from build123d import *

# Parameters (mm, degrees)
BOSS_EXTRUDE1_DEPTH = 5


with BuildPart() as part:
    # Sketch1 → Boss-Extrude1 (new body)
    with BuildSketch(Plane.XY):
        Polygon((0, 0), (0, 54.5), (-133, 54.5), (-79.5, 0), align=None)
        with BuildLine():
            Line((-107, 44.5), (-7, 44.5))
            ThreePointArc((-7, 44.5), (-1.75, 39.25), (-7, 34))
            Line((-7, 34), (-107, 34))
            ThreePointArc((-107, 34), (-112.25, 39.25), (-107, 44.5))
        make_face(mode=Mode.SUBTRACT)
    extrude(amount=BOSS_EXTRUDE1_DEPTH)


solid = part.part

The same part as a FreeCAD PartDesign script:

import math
import FreeCAD as App
import Part
import Sketcher
from FreeCAD import Vector
Q = App.Units.Quantity


def add_polygon(sketch, points):
    """Adds a closed chain of lines whose ends are joined by coincident constraints."""
    first, n = sketch.GeometryCount, len(points)
    for a, b in zip(points, points[1:] + points[:1]):
        sketch.addGeometry(Part.LineSegment(App.Vector(*a, 0), App.Vector(*b, 0)), False)
    for i in range(n):
        sketch.addConstraint(Sketcher.Constraint("Coincident", first + i, 2, first + (i + 1) % n, 1))

doc = App.newDocument("Part")
body = doc.addObject("PartDesign::Body", "Body")

sketch1 = body.newObject("Sketcher::SketchObject", "Sketch")
sketch1.AttachmentSupport = (doc.getObject("XY_Plane"), [""])
sketch1.MapMode = "FlatFace"
add_polygon(sketch1, [(0, 0), (0, 54), (-133, 54), (-80, 0)])
sketch1.addGeometry(Part.ArcOfCircle(Part.Circle(Vector(-107, 39, 0), Vector(0, 0, 1), 5), math.radians(90), math.radians(270)), False)
sketch1.addGeometry(Part.LineSegment(Vector(-107, 44, 0), Vector(-7, 44, 0)), False)
sketch1.addGeometry(Part.ArcOfCircle(Part.Circle(Vector(-7, 39, 0), Vector(0, 0, 1), 5), math.radians(-90), math.radians(90)), False)
sketch1.addGeometry(Part.LineSegment(Vector(-7, 34, 0), Vector(-107, 34, 0)), False)
sketch1.addConstraint(Sketcher.Constraint("Tangent", 4, 1, 5, 1))
sketch1.addConstraint(Sketcher.Constraint("Tangent", 5, 2, 6, 2))
sketch1.addConstraint(Sketcher.Constraint("Tangent", 6, 1, 7, 1))
sketch1.addConstraint(Sketcher.Constraint("Tangent", 7, 2, 4, 2))
sketch1.addConstraint(Sketcher.Constraint("Vertical", 0))
sketch1.addConstraint(Sketcher.Constraint("Horizontal", 1))
sketch1.addConstraint(Sketcher.Constraint("Horizontal", 3))
sketch1.addConstraint(Sketcher.Constraint("Horizontal", 5))
sketch1.addConstraint(Sketcher.Constraint("Horizontal", 7))
sketch1.addConstraint(Sketcher.Constraint("Coincident", 3, 2, -1, 1))
sketch1.addConstraint(Sketcher.Constraint("DistanceX", 1, 2, 1, 1, Q("133 mm")))
sketch1.addConstraint(Sketcher.Constraint("DistanceX", 5, 1, 5, 2, Q("100 mm")))
sketch1.addConstraint(Sketcher.Constraint("Radius", 4, Q("5.25 mm")))
sketch1.addConstraint(Sketcher.Constraint("DistanceX", 3, 1, 3, 2, Q("79.5 mm")))
sketch1.addConstraint(Sketcher.Constraint("DistanceY", 0, 1, 0, 2, Q("54.5 mm")))
sketch1.addConstraint(Sketcher.Constraint("DistanceX", 4, 3, -1, 1, Q("107 mm")))
sketch1.addConstraint(Sketcher.Constraint("DistanceY", -1, 1, 6, 1, Q("34 mm")))
pad1 = body.newObject("PartDesign::Pad", "Pad")
pad1.Profile = sketch1
pad1.Length = 5

doc.recompute()
